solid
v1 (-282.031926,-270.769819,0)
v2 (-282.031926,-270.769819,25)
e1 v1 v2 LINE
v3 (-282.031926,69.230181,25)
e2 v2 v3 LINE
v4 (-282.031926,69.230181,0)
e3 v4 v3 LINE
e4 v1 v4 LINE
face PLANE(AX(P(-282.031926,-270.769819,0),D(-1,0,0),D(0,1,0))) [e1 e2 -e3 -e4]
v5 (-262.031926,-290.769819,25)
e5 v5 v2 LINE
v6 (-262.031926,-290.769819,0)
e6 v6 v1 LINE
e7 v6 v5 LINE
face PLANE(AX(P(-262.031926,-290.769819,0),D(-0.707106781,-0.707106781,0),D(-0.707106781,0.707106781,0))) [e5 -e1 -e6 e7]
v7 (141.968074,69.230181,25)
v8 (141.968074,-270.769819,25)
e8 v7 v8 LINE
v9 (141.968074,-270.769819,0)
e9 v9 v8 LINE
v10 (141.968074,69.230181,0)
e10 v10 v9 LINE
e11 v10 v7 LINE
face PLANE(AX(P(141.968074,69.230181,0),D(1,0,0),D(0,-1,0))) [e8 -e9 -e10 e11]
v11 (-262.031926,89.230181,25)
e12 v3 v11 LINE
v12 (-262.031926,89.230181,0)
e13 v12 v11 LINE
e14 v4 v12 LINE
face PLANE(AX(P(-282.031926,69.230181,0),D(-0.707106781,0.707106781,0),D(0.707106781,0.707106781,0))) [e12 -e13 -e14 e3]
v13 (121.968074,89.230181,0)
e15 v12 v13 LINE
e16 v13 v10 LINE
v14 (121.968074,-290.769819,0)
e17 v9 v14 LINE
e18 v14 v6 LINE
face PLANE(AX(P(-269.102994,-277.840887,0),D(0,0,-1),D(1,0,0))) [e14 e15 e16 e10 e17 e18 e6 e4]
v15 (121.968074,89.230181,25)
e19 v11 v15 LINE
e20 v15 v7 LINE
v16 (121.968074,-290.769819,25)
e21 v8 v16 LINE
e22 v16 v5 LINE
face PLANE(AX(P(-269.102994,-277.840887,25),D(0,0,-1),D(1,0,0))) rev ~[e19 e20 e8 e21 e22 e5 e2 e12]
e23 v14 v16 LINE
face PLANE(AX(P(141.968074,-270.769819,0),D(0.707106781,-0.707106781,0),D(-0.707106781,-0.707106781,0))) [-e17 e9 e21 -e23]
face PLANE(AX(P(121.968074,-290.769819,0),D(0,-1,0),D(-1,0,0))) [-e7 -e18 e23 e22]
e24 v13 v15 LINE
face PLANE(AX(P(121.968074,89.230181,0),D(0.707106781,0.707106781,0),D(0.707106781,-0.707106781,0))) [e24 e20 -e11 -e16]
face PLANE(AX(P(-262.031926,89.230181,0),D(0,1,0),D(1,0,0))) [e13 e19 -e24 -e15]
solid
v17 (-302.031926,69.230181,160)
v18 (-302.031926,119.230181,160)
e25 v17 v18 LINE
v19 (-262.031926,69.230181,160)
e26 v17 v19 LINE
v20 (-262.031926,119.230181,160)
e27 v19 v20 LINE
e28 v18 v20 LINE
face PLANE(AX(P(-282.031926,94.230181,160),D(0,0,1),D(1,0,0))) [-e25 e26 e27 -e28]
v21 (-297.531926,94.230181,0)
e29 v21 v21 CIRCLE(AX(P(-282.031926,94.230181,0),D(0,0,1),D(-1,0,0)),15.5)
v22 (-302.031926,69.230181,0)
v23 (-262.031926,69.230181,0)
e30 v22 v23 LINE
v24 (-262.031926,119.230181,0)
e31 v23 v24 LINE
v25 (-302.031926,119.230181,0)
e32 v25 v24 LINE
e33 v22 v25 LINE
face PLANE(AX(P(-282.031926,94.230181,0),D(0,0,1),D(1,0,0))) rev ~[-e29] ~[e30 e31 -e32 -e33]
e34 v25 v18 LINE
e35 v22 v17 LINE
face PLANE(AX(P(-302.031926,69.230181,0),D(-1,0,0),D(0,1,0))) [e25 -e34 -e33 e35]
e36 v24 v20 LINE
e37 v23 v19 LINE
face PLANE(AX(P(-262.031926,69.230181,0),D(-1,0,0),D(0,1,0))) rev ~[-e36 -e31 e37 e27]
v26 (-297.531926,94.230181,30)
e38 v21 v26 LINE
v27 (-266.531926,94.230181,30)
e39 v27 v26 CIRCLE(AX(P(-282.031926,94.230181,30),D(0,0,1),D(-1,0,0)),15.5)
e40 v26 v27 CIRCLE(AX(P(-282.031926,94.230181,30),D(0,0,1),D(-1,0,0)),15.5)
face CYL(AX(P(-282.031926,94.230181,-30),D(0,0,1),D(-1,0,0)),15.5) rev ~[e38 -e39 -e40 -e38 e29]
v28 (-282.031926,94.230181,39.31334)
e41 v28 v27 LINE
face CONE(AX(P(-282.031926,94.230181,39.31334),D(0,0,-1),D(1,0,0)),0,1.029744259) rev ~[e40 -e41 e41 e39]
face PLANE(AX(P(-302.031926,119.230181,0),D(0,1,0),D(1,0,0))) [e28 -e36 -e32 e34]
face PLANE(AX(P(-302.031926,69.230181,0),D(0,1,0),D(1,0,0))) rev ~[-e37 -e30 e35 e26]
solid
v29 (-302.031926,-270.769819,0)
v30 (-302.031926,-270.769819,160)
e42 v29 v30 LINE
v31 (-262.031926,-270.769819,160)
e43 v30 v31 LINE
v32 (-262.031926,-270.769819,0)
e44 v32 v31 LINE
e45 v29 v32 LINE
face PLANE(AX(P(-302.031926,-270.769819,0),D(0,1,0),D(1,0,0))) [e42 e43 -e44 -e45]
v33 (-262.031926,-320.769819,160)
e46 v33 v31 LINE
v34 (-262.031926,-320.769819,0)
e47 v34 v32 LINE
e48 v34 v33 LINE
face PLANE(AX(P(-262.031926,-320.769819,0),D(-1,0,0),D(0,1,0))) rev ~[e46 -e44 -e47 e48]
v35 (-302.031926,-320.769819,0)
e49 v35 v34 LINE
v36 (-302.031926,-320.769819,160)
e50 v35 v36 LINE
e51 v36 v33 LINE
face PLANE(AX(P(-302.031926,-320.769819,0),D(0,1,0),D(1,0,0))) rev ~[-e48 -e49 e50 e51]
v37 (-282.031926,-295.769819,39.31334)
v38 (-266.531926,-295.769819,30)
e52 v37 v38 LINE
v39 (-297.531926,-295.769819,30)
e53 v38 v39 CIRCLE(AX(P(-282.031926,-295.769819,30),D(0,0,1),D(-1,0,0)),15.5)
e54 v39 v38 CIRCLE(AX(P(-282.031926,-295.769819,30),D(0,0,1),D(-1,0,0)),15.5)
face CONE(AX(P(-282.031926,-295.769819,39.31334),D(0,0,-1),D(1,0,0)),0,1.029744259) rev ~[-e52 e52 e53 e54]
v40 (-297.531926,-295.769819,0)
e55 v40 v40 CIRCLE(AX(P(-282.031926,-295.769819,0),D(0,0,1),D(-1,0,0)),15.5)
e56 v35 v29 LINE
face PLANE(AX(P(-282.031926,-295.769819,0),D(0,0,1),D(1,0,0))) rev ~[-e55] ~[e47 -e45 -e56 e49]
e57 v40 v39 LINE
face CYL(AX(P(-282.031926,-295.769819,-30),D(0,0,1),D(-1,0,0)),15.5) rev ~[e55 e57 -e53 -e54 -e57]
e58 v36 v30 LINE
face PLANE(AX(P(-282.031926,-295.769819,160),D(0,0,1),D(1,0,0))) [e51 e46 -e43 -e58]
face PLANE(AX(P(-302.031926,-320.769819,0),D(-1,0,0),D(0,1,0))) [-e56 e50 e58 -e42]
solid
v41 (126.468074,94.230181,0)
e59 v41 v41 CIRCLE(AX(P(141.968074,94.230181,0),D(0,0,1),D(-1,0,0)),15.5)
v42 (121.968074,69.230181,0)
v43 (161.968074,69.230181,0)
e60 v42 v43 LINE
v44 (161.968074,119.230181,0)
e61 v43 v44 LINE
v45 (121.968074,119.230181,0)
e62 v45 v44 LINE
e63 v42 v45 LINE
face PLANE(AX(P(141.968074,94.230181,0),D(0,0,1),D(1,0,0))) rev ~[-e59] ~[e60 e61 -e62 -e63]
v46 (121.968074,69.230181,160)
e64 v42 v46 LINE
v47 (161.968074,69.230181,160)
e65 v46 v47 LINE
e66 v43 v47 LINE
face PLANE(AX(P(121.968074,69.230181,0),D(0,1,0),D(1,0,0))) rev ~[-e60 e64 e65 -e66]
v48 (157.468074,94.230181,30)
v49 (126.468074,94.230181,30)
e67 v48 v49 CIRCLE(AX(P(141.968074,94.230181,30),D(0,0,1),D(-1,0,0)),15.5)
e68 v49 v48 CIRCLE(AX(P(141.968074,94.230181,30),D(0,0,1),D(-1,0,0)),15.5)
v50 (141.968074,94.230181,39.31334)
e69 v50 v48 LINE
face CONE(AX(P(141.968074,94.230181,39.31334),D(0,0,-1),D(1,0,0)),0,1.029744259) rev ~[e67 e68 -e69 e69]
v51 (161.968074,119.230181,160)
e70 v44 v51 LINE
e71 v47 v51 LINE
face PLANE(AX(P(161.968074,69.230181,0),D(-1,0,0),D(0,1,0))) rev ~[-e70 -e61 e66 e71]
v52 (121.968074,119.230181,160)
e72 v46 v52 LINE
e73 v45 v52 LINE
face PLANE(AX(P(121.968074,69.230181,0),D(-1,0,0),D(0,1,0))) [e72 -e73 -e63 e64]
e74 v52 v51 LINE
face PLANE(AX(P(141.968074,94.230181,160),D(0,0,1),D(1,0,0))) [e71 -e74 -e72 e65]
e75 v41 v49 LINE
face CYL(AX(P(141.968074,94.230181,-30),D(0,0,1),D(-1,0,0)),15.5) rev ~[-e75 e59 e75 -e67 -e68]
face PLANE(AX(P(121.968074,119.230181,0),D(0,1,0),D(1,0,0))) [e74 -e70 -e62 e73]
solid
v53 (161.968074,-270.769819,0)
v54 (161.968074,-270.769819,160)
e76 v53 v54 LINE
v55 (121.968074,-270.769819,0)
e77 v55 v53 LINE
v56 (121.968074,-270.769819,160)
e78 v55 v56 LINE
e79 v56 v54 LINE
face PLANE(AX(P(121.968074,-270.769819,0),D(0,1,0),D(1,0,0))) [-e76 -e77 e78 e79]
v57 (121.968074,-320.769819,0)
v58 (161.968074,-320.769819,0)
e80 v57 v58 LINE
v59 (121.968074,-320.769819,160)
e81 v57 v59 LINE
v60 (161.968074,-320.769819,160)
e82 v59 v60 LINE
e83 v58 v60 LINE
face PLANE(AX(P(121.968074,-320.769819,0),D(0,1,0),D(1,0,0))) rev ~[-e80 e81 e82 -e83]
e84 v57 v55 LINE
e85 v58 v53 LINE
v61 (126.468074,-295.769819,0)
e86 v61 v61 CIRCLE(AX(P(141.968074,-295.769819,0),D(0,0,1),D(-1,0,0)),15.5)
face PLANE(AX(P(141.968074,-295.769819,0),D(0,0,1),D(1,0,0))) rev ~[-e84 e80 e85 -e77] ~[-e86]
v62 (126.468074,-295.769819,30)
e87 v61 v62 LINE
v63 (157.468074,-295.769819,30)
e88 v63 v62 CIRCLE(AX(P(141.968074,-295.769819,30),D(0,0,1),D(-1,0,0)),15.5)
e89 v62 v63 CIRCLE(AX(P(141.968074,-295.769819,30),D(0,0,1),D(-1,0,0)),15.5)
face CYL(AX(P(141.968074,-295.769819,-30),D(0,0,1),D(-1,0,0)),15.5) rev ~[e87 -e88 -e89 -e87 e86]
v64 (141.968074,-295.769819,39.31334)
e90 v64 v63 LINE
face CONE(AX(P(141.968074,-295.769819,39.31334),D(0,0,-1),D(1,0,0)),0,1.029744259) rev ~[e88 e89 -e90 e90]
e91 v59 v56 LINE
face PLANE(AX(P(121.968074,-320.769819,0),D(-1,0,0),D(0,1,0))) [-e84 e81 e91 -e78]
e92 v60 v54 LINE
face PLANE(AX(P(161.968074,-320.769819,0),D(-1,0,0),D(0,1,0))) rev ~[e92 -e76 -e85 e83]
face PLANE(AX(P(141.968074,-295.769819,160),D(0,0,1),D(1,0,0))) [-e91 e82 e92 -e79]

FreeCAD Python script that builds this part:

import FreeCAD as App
import Part
import Sketcher
from FreeCAD import Vector


def add_polygon(sketch, points):
    """Adds a closed chain of lines whose ends are joined by coincident constraints."""
    first, n = sketch.GeometryCount, len(points)
    for a, b in zip(points, points[1:] + points[:1]):
        sketch.addGeometry(Part.LineSegment(App.Vector(*a, 0), App.Vector(*b, 0)), False)
    for i in range(n):
        sketch.addConstraint(Sketcher.Constraint("Coincident", first + i, 2, first + (i + 1) % n, 1))

doc = App.newDocument("Part")
params = doc.addObject("Spreadsheet::Sheet", "Params")
for row, (alias, value) in enumerate([
    ("sketch1_width", "40 mm"),
    ("sketch1_height", "50 mm"),
    ("pad1_length", "160 mm"),
    ("sketch2_diameter", "31 mm"),
    ("hole_diameter", "31 mm"),
    ("hole_depth", "30 mm"),
    ("sketch3_width", "40 mm"),
    ("sketch3_height", "50 mm"),
    ("pad2_length", "160 mm"),
    ("sketch4_diameter", "31 mm"),
    ("hole2_diameter", "31 mm"),
    ("hole2_depth", "30 mm"),
    ("sketch5_width", "40 mm"),
    ("sketch5_height", "50 mm"),
    ("pad3_length", "160 mm"),
    ("sketch6_diameter", "31 mm"),
    ("hole3_diameter", "31 mm"),
    ("hole3_depth", "30 mm"),
    ("sketch7_width", "40 mm"),
    ("sketch7_height", "50 mm"),
    ("pad4_length", "160 mm"),
    ("sketch8_diameter", "31 mm"),
    ("hole4_diameter", "31 mm"),
    ("hole4_depth", "30 mm"),
    ("sketch9_width", "384 mm"),
    ("sketch9_height", "340 mm"),
    ("pad5_length", "25 mm"),
], start=1):
    params.set(f"A{row}", alias)
    params.set(f"B{row}", "=" + value)
    params.setAlias(f"B{row}", alias)

body = doc.addObject("PartDesign::Body", "Body")

# Sketch on XY plane
sketch1 = body.newObject("Sketcher::SketchObject", "Sketch")
sketch1.AttachmentSupport = (doc.getObject("XY_Plane"), [""])
sketch1.MapMode = "FlatFace"
add_polygon(sketch1, [(-302, 119), (-302, 69), (-262, 69), (-262, 119)])  # lines 0-3
sketch1.addConstraint([
    Sketcher.Constraint("Vertical", 0),
    Sketcher.Constraint("Horizontal", 1),
    Sketcher.Constraint("Vertical", 2),
    Sketcher.Constraint("Horizontal", 3),
    Sketcher.Constraint("DistanceX", 1, 1, 1, 2, 40.0),
    Sketcher.Constraint("DistanceY", 0, 2, 0, 1, 50.0),
    Sketcher.Constraint("DistanceY", -1, 1, 0, 2, 69.230181),
    Sketcher.Constraint("DistanceX", 0, 2, -1, 1, 302.031926),
])
sketch1.setExpression("Constraints[8]", "Params.sketch1_width")
sketch1.setExpression("Constraints[9]", "Params.sketch1_height")
pad1 = body.newObject("PartDesign::Pad", "Pad")
pad1.Profile = sketch1
pad1.setExpression("Length", "Params.pad1_length")

# Sketch on XY plane
sketch2 = body.newObject("Sketcher::SketchObject", "Sketch001")
sketch2.AttachmentSupport = (doc.getObject("XY_Plane"), [""])
sketch2.MapMode = "FlatFace"
sketch2.addGeometry([
    Part.Circle(Vector(-282, -296, 0), Vector(0, 0, 1), 16),
    Part.Circle(Vector(-282, 94, 0), Vector(0, 0, 1), 16),
    Part.Circle(Vector(142, 94, 0), Vector(0, 0, 1), 16),
    Part.Circle(Vector(142, -296, 0), Vector(0, 0, 1), 16),
], False)
sketch2.addConstraint([
    Sketcher.Constraint("Equal", 0, 1),
    Sketcher.Constraint("Equal", 1, 2),
    Sketcher.Constraint("Equal", 2, 3),
    Sketcher.Constraint("Horizontal", 1, 3, 2, 3),
    Sketcher.Constraint("Horizontal", 0, 3, 3, 3),
    Sketcher.Constraint("Vertical", 0, 3, 1, 3),
    Sketcher.Constraint("Vertical", 2, 3, 3, 3),
    Sketcher.Constraint("Diameter", 0, 31.0),
    Sketcher.Constraint("DistanceY", 0, 3, 1, 3, 390.0),
    Sketcher.Constraint("DistanceX", 1, 3, 2, 3, 424.0),
    Sketcher.Constraint("DistanceY", 0, 3, -1, 1, 295.769819),
    Sketcher.Constraint("DistanceX", 0, 3, -1, 1, 282.031926),
])
sketch2.setExpression("Constraints[7]", "Params.sketch2_diameter")
doc.recompute()
hole = body.newObject("PartDesign::Hole", "Hole")
hole.Profile = sketch2
hole.ThreadType = "None"
hole.setExpression("Diameter", "Params.hole_diameter")
hole.DepthType = "Dimension"
hole.setExpression("Depth", "Params.hole_depth")
hole.DrillPoint = "Angled"
hole.DrillPointAngle = 118
hole.Reversed = True
body2 = doc.addObject("PartDesign::Body", "Body001")

# Sketch on XY plane
sketch3 = body2.newObject("Sketcher::SketchObject", "Sketch002")
sketch3.AttachmentSupport = (doc.getObject("XY_Plane001"), [""])
sketch3.MapMode = "FlatFace"
add_polygon(sketch3, [(122, 119), (122, 69), (162, 69), (162, 119)])  # lines 0-3
sketch3.addConstraint([
    Sketcher.Constraint("Vertical", 0),
    Sketcher.Constraint("Horizontal", 1),
    Sketcher.Constraint("Vertical", 2),
    Sketcher.Constraint("Horizontal", 3),
    Sketcher.Constraint("DistanceX", 1, 1, 1, 2, 40.0),
    Sketcher.Constraint("DistanceY", 0, 2, 0, 1, 50.0),
    Sketcher.Constraint("DistanceY", -1, 1, 0, 2, 69.230181),
    Sketcher.Constraint("DistanceX", -1, 1, 0, 2, 121.968074),
])
sketch3.setExpression("Constraints[8]", "Params.sketch3_width")
sketch3.setExpression("Constraints[9]", "Params.sketch3_height")
pad2 = body2.newObject("PartDesign::Pad", "Pad001")
pad2.Profile = sketch3
pad2.setExpression("Length", "Params.pad2_length")

# Sketch on XY plane
sketch4 = body2.newObject("Sketcher::SketchObject", "Sketch003")
sketch4.AttachmentSupport = (doc.getObject("XY_Plane001"), [""])
sketch4.MapMode = "FlatFace"
sketch4.addGeometry([
    Part.Circle(Vector(-282, -296, 0), Vector(0, 0, 1), 16),
    Part.Circle(Vector(-282, 94, 0), Vector(0, 0, 1), 16),
    Part.Circle(Vector(142, 94, 0), Vector(0, 0, 1), 16),
    Part.Circle(Vector(142, -296, 0), Vector(0, 0, 1), 16),
], False)
sketch4.addConstraint([
    Sketcher.Constraint("Equal", 0, 1),
    Sketcher.Constraint("Equal", 1, 2),
    Sketcher.Constraint("Equal", 2, 3),
    Sketcher.Constraint("Horizontal", 1, 3, 2, 3),
    Sketcher.Constraint("Horizontal", 0, 3, 3, 3),
    Sketcher.Constraint("Vertical", 0, 3, 1, 3),
    Sketcher.Constraint("Vertical", 2, 3, 3, 3),
    Sketcher.Constraint("Diameter", 0, 31.0),
    Sketcher.Constraint("DistanceY", 0, 3, 1, 3, 390.0),
    Sketcher.Constraint("DistanceX", 1, 3, 2, 3, 424.0),
    Sketcher.Constraint("DistanceY", 0, 3, -1, 1, 295.769819),
    Sketcher.Constraint("DistanceX", 0, 3, -1, 1, 282.031926),
])
sketch4.setExpression("Constraints[7]", "Params.sketch4_diameter")
doc.recompute()
hole2 = body2.newObject("PartDesign::Hole", "Hole001")
hole2.Profile = sketch4
hole2.ThreadType = "None"
hole2.setExpression("Diameter", "Params.hole2_diameter")
hole2.DepthType = "Dimension"
hole2.setExpression("Depth", "Params.hole2_depth")
hole2.DrillPoint = "Angled"
hole2.DrillPointAngle = 118
hole2.Reversed = True
body3 = doc.addObject("PartDesign::Body", "Body002")

# Sketch on XY plane
sketch5 = body3.newObject("Sketcher::SketchObject", "Sketch004")
sketch5.AttachmentSupport = (doc.getObject("XY_Plane002"), [""])
sketch5.MapMode = "FlatFace"
add_polygon(sketch5, [(122, -271), (122, -321), (162, -321), (162, -271)])  # lines 0-3
sketch5.addConstraint([
    Sketcher.Constraint("Vertical", 0),
    Sketcher.Constraint("Horizontal", 1),
    Sketcher.Constraint("Vertical", 2),
    Sketcher.Constraint("Horizontal", 3),
    Sketcher.Constraint("DistanceX", 1, 1, 1, 2, 40.0),
    Sketcher.Constraint("DistanceY", 0, 2, 0, 1, 50.0),
    Sketcher.Constraint("DistanceY", 0, 2, -1, 1, 320.769819),
    Sketcher.Constraint("DistanceX", -1, 1, 0, 2, 121.968074),
])
sketch5.setExpression("Constraints[8]", "Params.sketch5_width")
sketch5.setExpression("Constraints[9]", "Params.sketch5_height")
pad3 = body3.newObject("PartDesign::Pad", "Pad002")
pad3.Profile = sketch5
pad3.setExpression("Length", "Params.pad3_length")

# Sketch on XY plane
sketch6 = body3.newObject("Sketcher::SketchObject", "Sketch005")
sketch6.AttachmentSupport = (doc.getObject("XY_Plane002"), [""])
sketch6.MapMode = "FlatFace"
sketch6.addGeometry([
    Part.Circle(Vector(-282, -296, 0), Vector(0, 0, 1), 16),
    Part.Circle(Vector(-282, 94, 0), Vector(0, 0, 1), 16),
    Part.Circle(Vector(142, 94, 0), Vector(0, 0, 1), 16),
    Part.Circle(Vector(142, -296, 0), Vector(0, 0, 1), 16),
], False)
sketch6.addConstraint([
    Sketcher.Constraint("Equal", 0, 1),
    Sketcher.Constraint("Equal", 1, 2),
    Sketcher.Constraint("Equal", 2, 3),
    Sketcher.Constraint("Horizontal", 1, 3, 2, 3),
    Sketcher.Constraint("Horizontal", 0, 3, 3, 3),
    Sketcher.Constraint("Vertical", 0, 3, 1, 3),
    Sketcher.Constraint("Vertical", 2, 3, 3, 3),
    Sketcher.Constraint("Diameter", 0, 31.0),
    Sketcher.Constraint("DistanceY", 0, 3, 1, 3, 390.0),
    Sketcher.Constraint("DistanceX", 1, 3, 2, 3, 424.0),
    Sketcher.Constraint("DistanceY", 0, 3, -1, 1, 295.769819),
    Sketcher.Constraint("DistanceX", 0, 3, -1, 1, 282.031926),
])
sketch6.setExpression("Constraints[7]", "Params.sketch6_diameter")
doc.recompute()
hole3 = body3.newObject("PartDesign::Hole", "Hole002")
hole3.Profile = sketch6
hole3.ThreadType = "None"
hole3.setExpression("Diameter", "Params.hole3_diameter")
hole3.DepthType = "Dimension"
hole3.setExpression("Depth", "Params.hole3_depth")
hole3.DrillPoint = "Angled"
hole3.DrillPointAngle = 118
hole3.Reversed = True
body4 = doc.addObject("PartDesign::Body", "Body003")

# Sketch on XY plane
sketch7 = body4.newObject("Sketcher::SketchObject", "Sketch006")
sketch7.AttachmentSupport = (doc.getObject("XY_Plane003"), [""])
sketch7.MapMode = "FlatFace"
add_polygon(sketch7, [(-302, -271), (-302, -321), (-262, -321), (-262, -271)])  # lines 0-3
sketch7.addConstraint([
    Sketcher.Constraint("Vertical", 0),
    Sketcher.Constraint("Horizontal", 1),
    Sketcher.Constraint("Vertical", 2),
    Sketcher.Constraint("Horizontal", 3),
    Sketcher.Constraint("DistanceX", 1, 1, 1, 2, 40.0),
    Sketcher.Constraint("DistanceY", 0, 2, 0, 1, 50.0),
    Sketcher.Constraint("DistanceY", 0, 2, -1, 1, 320.769819),
    Sketcher.Constraint("DistanceX", 0, 2, -1, 1, 302.031926),
])
sketch7.setExpression("Constraints[8]", "Params.sketch7_width")
sketch7.setExpression("Constraints[9]", "Params.sketch7_height")
pad4 = body4.newObject("PartDesign::Pad", "Pad003")
pad4.Profile = sketch7
pad4.setExpression("Length", "Params.pad4_length")

# Sketch on XY plane
sketch8 = body4.newObject("Sketcher::SketchObject", "Sketch007")
sketch8.AttachmentSupport = (doc.getObject("XY_Plane003"), [""])
sketch8.MapMode = "FlatFace"
sketch8.addGeometry([
    Part.Circle(Vector(-282, -296, 0), Vector(0, 0, 1), 16),
    Part.Circle(Vector(-282, 94, 0), Vector(0, 0, 1), 16),
    Part.Circle(Vector(142, 94, 0), Vector(0, 0, 1), 16),
    Part.Circle(Vector(142, -296, 0), Vector(0, 0, 1), 16),
], False)
sketch8.addConstraint([
    Sketcher.Constraint("Equal", 0, 1),
    Sketcher.Constraint("Equal", 1, 2),
    Sketcher.Constraint("Equal", 2, 3),
    Sketcher.Constraint("Horizontal", 1, 3, 2, 3),
    Sketcher.Constraint("Horizontal", 0, 3, 3, 3),
    Sketcher.Constraint("Vertical", 0, 3, 1, 3),
    Sketcher.Constraint("Vertical", 2, 3, 3, 3),
    Sketcher.Constraint("Diameter", 0, 31.0),
    Sketcher.Constraint("DistanceY", 0, 3, 1, 3, 390.0),
    Sketcher.Constraint("DistanceX", 1, 3, 2, 3, 424.0),
    Sketcher.Constraint("DistanceY", 0, 3, -1, 1, 295.769819),
    Sketcher.Constraint("DistanceX", 0, 3, -1, 1, 282.031926),
])
sketch8.setExpression("Constraints[7]", "Params.sketch8_diameter")
doc.recompute()
hole4 = body4.newObject("PartDesign::Hole", "Hole003")
hole4.Profile = sketch8
hole4.ThreadType = "None"
hole4.setExpression("Diameter", "Params.hole4_diameter")
hole4.DepthType = "Dimension"
hole4.setExpression("Depth", "Params.hole4_depth")
hole4.DrillPoint = "Angled"
hole4.DrillPointAngle = 118
hole4.Reversed = True
body5 = doc.addObject("PartDesign::Body", "Body004")

# Sketch on XY plane
sketch9 = body5.newObject("Sketcher::SketchObject", "Sketch008")
sketch9.AttachmentSupport = (doc.getObject("XY_Plane004"), [""])
sketch9.MapMode = "FlatFace"
add_polygon(sketch9, [(-262, -291), (-282, -271), (-282, 69), (-262, 89), (122, 89), (142, 69), (142, -271), (122, -291)])  # lines 0-7
sketch9.addConstraint([
    Sketcher.Constraint("Vertical", 1),
    Sketcher.Constraint("Horizontal", 3),
    Sketcher.Constraint("Vertical", 5),
    Sketcher.Constraint("Horizontal", 7),
    Sketcher.Constraint("Perpendicular", 0, 2),
    Sketcher.Constraint("Perpendicular", 2, 4),
    Sketcher.Constraint("Perpendicular", 4, 6),
    Sketcher.Constraint("Horizontal", 1, 2, 4, 2),
    Sketcher.Constraint("Horizontal", 0, 2, 5, 2),
    Sketcher.Constraint("Vertical", 3, 2, 6, 2),
    Sketcher.Constraint("Vertical", 2, 2, 7, 2),
    Sketcher.Constraint("DistanceX", 3, 1, 3, 2, 384.0),
    Sketcher.Constraint("DistanceY", 1, 1, 1, 2, 340.0),
    Sketcher.Constraint("DistanceX", 1, 2, 2, 2, 20.0),
    Sketcher.Constraint("DistanceY", 0, 2, -1, 1, 270.769819),
    Sketcher.Constraint("DistanceX", 0, 2, -1, 1, 282.031926),
])
sketch9.setExpression("Constraints[19]", "Params.sketch9_width")
sketch9.setExpression("Constraints[20]", "Params.sketch9_height")
pad5 = body5.newObject("PartDesign::Pad", "Pad004")
pad5.Profile = sketch9
pad5.setExpression("Length", "Params.pad5_length")

doc.recompute()
